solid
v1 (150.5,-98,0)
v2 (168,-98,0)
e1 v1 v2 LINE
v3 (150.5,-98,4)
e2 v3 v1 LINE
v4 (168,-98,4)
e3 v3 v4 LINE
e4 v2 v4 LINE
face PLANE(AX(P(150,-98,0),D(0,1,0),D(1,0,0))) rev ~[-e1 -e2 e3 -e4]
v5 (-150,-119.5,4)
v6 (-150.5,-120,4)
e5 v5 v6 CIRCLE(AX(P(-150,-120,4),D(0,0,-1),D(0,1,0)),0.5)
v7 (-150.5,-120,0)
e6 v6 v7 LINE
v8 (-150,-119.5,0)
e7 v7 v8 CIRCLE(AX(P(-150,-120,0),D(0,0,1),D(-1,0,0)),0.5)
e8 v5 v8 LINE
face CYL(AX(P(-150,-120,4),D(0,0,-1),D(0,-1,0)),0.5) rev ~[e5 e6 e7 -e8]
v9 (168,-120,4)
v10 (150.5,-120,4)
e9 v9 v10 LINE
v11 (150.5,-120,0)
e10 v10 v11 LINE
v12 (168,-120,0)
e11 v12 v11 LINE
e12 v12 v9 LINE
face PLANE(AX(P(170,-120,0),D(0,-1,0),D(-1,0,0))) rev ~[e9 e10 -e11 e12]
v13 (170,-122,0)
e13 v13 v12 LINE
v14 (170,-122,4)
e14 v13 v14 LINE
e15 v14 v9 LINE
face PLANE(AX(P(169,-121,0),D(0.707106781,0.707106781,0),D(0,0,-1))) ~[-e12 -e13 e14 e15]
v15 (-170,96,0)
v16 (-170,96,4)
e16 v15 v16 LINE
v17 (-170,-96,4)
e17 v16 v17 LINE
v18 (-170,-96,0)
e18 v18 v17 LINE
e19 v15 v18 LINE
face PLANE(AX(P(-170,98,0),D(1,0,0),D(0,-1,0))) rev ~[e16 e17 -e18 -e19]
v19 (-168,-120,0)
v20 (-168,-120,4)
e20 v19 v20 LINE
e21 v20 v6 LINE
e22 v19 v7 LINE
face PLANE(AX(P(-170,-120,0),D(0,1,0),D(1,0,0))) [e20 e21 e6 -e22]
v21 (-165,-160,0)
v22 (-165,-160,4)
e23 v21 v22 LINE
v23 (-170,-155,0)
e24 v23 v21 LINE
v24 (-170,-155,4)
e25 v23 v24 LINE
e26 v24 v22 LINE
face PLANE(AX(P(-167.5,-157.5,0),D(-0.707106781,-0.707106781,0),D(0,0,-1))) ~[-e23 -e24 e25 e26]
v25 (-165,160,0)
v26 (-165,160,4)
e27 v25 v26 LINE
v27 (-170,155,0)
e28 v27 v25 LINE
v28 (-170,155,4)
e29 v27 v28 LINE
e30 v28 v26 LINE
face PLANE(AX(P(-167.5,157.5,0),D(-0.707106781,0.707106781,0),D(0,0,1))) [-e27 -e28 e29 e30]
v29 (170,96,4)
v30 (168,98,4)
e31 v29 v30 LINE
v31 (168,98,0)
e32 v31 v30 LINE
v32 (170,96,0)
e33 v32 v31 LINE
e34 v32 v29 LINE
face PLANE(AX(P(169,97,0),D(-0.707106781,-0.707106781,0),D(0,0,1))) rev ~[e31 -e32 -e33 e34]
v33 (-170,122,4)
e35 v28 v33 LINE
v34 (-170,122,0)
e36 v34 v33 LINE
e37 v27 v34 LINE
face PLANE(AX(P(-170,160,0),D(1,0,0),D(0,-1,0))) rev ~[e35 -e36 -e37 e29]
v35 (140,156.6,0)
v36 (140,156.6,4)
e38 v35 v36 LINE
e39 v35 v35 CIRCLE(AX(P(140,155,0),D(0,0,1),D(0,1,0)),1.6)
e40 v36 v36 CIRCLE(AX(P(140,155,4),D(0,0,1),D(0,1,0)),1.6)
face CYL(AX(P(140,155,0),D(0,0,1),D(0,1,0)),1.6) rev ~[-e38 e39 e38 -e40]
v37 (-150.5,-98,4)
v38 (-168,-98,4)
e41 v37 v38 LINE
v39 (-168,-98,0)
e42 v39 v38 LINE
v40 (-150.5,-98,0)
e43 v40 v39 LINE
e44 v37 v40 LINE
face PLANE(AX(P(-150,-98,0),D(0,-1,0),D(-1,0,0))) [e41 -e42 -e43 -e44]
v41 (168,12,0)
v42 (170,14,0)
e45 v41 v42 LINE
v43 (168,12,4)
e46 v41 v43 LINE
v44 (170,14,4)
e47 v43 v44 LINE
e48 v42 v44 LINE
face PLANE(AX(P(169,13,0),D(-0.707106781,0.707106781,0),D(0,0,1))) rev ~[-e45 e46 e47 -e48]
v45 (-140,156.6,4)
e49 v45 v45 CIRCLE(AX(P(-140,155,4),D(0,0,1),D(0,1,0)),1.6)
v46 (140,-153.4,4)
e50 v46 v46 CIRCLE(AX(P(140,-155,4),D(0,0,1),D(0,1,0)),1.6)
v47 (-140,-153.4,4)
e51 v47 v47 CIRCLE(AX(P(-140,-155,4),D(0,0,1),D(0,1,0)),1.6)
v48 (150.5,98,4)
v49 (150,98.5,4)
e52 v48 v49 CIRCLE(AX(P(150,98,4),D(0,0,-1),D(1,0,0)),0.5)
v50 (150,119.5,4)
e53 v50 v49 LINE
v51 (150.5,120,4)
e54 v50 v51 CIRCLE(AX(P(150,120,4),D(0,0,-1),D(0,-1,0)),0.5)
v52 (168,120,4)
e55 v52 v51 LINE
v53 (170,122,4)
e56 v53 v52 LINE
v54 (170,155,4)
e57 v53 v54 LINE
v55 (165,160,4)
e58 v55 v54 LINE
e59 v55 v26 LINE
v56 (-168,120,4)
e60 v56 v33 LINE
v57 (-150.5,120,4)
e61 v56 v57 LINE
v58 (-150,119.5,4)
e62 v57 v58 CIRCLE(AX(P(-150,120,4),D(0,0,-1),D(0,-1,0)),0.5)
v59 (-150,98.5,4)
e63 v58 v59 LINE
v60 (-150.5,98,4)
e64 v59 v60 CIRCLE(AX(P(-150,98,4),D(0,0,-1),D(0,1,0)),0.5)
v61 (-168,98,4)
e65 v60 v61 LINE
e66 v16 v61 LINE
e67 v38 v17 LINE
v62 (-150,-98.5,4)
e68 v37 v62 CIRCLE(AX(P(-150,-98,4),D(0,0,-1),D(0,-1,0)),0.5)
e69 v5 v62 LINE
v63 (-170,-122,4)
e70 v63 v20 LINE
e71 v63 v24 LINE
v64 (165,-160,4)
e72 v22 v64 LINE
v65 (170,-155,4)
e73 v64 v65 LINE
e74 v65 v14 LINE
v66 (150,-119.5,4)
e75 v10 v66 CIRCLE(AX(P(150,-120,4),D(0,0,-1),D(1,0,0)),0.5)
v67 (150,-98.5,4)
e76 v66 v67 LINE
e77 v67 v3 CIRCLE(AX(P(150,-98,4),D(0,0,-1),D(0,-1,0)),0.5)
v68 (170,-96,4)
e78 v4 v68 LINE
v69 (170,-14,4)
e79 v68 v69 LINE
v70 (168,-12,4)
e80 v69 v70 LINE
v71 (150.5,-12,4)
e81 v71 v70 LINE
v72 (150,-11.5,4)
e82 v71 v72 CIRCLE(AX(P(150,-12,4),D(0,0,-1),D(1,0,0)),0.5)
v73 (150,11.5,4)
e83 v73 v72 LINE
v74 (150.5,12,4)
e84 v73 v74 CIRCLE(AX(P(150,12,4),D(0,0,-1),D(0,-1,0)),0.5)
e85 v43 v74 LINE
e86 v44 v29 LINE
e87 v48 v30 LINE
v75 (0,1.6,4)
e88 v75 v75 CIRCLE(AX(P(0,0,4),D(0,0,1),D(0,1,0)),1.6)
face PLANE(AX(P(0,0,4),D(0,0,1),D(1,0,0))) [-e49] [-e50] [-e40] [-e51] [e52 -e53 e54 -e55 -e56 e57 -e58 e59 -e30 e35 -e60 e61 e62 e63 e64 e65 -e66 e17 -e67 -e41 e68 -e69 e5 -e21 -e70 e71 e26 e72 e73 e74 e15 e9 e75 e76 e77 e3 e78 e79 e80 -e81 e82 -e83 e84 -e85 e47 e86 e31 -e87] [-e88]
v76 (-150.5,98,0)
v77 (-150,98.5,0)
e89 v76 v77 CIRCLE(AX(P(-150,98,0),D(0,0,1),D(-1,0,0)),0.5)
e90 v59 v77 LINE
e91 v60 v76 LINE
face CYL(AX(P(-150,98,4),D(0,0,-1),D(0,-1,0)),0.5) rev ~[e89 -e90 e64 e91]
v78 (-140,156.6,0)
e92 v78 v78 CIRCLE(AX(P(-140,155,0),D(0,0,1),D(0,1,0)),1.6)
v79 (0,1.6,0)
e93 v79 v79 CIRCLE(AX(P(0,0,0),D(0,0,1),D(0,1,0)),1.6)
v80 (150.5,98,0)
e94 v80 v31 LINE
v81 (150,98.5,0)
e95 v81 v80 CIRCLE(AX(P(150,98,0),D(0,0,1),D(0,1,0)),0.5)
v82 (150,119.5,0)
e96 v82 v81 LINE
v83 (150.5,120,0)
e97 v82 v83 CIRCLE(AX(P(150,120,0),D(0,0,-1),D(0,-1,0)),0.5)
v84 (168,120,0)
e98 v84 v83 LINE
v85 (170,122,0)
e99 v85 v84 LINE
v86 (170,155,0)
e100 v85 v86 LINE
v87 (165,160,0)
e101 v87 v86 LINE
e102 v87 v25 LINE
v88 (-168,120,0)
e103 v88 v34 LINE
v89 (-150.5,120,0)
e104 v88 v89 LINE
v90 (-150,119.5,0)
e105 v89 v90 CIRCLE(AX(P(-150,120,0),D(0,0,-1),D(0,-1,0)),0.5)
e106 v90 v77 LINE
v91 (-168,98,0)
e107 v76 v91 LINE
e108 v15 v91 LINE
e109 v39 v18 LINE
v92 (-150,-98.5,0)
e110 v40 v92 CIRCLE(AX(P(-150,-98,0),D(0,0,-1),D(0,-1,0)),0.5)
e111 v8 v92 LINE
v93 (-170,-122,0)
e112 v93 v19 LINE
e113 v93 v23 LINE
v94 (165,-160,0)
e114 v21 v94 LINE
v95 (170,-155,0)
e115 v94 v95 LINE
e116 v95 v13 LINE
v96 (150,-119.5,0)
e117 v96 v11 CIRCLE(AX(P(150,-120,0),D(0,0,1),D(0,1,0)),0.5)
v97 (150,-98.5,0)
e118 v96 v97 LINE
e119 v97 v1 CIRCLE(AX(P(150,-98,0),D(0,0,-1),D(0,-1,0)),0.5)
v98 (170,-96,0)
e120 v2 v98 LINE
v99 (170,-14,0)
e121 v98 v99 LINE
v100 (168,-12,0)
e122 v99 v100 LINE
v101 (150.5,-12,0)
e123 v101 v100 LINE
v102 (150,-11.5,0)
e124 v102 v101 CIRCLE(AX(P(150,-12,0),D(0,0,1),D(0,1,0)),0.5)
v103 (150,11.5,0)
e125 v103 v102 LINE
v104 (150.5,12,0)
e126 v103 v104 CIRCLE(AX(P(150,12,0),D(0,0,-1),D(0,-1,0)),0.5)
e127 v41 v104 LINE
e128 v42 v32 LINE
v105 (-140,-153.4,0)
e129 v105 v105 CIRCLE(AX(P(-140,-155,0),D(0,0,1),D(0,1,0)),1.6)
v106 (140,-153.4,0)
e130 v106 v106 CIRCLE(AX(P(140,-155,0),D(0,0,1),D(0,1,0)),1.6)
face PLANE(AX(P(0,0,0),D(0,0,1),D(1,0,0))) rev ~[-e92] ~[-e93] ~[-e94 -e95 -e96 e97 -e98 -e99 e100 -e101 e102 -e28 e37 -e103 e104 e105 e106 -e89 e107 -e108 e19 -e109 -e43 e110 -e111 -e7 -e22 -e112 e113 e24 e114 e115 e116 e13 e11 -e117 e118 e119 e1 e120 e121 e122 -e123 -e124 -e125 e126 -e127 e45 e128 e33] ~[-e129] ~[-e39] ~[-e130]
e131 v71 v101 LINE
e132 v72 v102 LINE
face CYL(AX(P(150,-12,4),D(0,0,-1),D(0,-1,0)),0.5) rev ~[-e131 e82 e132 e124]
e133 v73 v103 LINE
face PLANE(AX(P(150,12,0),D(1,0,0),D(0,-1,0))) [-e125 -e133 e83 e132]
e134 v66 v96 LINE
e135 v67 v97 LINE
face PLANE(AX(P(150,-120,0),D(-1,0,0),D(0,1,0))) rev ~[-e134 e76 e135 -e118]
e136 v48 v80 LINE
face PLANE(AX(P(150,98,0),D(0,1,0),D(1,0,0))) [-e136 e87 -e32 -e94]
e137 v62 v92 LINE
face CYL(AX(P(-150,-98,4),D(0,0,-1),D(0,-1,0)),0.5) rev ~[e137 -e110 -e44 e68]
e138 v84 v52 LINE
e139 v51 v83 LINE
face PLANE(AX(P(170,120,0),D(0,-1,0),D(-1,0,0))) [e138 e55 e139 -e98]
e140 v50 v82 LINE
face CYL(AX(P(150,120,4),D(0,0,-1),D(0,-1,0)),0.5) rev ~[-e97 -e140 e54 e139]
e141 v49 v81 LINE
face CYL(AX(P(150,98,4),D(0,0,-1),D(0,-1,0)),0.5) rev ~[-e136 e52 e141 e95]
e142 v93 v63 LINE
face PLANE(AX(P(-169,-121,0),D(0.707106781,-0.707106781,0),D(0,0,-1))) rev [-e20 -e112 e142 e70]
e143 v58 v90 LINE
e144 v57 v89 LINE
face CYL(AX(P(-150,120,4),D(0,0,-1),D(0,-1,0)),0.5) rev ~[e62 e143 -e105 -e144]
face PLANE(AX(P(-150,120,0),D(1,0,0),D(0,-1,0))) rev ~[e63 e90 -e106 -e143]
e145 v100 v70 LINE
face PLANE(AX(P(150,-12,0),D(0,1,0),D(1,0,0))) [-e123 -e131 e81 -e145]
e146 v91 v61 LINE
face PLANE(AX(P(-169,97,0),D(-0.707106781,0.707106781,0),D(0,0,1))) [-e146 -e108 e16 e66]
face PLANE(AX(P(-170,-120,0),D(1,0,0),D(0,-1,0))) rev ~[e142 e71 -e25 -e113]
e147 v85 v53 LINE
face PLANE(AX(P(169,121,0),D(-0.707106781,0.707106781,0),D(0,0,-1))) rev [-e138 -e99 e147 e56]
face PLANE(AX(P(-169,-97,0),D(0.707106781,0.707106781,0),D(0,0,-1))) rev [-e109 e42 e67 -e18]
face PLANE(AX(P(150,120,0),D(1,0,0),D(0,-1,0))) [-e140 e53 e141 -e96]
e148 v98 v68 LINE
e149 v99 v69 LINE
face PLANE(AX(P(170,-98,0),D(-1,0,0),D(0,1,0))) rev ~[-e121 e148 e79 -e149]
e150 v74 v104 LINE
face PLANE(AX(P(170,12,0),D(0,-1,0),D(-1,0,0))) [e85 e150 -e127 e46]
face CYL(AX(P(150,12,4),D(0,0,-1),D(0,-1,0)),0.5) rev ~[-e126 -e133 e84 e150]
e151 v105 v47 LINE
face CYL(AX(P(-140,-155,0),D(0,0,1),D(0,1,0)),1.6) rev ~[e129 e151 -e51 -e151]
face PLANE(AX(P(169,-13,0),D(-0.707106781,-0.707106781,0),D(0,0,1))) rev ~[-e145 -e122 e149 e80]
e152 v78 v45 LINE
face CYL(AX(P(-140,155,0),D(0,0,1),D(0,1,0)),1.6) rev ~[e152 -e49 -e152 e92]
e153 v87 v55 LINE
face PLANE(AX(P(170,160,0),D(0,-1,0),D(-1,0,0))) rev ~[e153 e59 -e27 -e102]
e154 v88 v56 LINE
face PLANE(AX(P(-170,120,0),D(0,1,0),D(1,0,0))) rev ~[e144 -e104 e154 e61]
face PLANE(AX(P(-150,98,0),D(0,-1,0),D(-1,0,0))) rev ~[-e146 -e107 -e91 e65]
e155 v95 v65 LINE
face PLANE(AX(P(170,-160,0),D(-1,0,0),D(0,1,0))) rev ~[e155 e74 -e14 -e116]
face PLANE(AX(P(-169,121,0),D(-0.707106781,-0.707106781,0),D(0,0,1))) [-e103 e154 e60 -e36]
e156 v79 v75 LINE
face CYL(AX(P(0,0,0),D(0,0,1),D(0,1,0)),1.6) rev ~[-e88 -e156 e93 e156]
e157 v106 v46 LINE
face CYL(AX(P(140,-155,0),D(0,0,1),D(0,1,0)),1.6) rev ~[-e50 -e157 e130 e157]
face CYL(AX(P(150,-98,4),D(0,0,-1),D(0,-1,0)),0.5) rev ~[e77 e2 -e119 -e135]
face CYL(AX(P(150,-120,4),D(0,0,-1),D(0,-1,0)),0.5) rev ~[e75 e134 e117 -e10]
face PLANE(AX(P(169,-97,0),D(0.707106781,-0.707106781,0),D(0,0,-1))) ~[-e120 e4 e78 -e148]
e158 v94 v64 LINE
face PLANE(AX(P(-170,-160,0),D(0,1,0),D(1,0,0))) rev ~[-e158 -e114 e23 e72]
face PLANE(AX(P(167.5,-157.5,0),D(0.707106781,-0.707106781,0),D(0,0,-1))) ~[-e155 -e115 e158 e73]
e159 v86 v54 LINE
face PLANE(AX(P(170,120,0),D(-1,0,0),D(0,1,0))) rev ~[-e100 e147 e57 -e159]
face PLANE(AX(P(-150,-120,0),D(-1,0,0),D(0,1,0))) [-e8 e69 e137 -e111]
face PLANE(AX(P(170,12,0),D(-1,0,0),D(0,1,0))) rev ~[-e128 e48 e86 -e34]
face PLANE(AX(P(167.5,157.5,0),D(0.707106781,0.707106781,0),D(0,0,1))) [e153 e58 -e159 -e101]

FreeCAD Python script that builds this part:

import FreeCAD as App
import Part
import Sketcher

V = App.Vector
Q = App.Units.Quantity


def edges_at(feature, points):
    """Names of the edges that pass closest to the given points."""
    edges = feature.Shape.Edges
    near = lambda p: min(range(len(edges)), key=lambda i: edges[i].distToShape(Part.Vertex(*p))[0])
    return sorted({f"Edge{near(p) + 1}" for p in points})

doc = App.newDocument("Part")
body = doc.addObject("PartDesign::Body", "Body")

# Sketch on XY plane
sketch1 = body.newObject("Sketcher::SketchObject", "Sketch")
sketch1.AttachmentSupport = (doc.getObject("XY_Plane"), [""])
sketch1.MapMode = "FlatFace"
sketch1.addGeometry([
    Part.LineSegment(V(-170, -120, 0), V(-170, -160, 0)),  # 0
    Part.LineSegment(V(-170, -160, 0), V(170, -160, 0)),  # 1
    Part.LineSegment(V(170, -160, 0), V(170, -120, 0)),  # 2
    Part.LineSegment(V(170, -120, 0), V(150, -120, 0)),  # 3
    Part.LineSegment(V(150, -120, 0), V(150, -98, 0)),  # 4
    Part.LineSegment(V(150, -98, 0), V(170, -98, 0)),  # 5
    Part.LineSegment(V(170, -98, 0), V(170, -12, 0)),  # 6
    Part.LineSegment(V(170, -12, 0), V(150, -12, 0)),  # 7
    Part.LineSegment(V(150, -12, 0), V(150, 12, 0)),  # 8
    Part.LineSegment(V(150, 12, 0), V(170, 12, 0)),  # 9
    Part.LineSegment(V(170, 12, 0), V(170, 98, 0)),  # 10
    Part.LineSegment(V(170, 98, 0), V(150, 98, 0)),  # 11
    Part.LineSegment(V(150, 98, 0), V(150, 120, 0)),  # 12
    Part.LineSegment(V(150, 120, 0), V(170, 120, 0)),  # 13
    Part.LineSegment(V(170, 120, 0), V(170, 160, 0)),  # 14
    Part.LineSegment(V(170, 160, 0), V(-170, 160, 0)),  # 15
    Part.LineSegment(V(-170, 160, 0), V(-170, 120, 0)),  # 16
    Part.LineSegment(V(-170, 120, 0), V(-150, 120, 0)),  # 17
    Part.LineSegment(V(-150, 120, 0), V(-150, 98, 0)),  # 18
    Part.LineSegment(V(-150, 98, 0), V(-170, 98, 0)),  # 19
    Part.LineSegment(V(-170, 98, 0), V(-170, -98, 0)),  # 20
    Part.LineSegment(V(-170, -98, 0), V(-150, -98, 0)),  # 21
    Part.LineSegment(V(-150, -98, 0), V(-150, -120, 0)),  # 22
    Part.LineSegment(V(-150, -120, 0), V(-170, -120, 0)),  # 23
], False)
sketch1.addConstraint([
    Sketcher.Constraint("Coincident", 0, 2, 1, 1),
    Sketcher.Constraint("Coincident", 1, 2, 2, 1),
    Sketcher.Constraint("Coincident", 2, 2, 3, 1),
    Sketcher.Constraint("Coincident", 3, 2, 4, 1),
    Sketcher.Constraint("Coincident", 4, 2, 5, 1),
    Sketcher.Constraint("Coincident", 5, 2, 6, 1),
    Sketcher.Constraint("Coincident", 6, 2, 7, 1),
    Sketcher.Constraint("Coincident", 7, 2, 8, 1),
    Sketcher.Constraint("Coincident", 8, 2, 9, 1),
    Sketcher.Constraint("Coincident", 9, 2, 10, 1),
    Sketcher.Constraint("Coincident", 10, 2, 11, 1),
    Sketcher.Constraint("Coincident", 11, 2, 12, 1),
    Sketcher.Constraint("Coincident", 12, 2, 13, 1),
    Sketcher.Constraint("Coincident", 13, 2, 14, 1),
    Sketcher.Constraint("Coincident", 14, 2, 15, 1),
    Sketcher.Constraint("Coincident", 15, 2, 16, 1),
    Sketcher.Constraint("Coincident", 16, 2, 17, 1),
    Sketcher.Constraint("Coincident", 17, 2, 18, 1),
    Sketcher.Constraint("Coincident", 18, 2, 19, 1),
    Sketcher.Constraint("Coincident", 19, 2, 20, 1),
    Sketcher.Constraint("Coincident", 20, 2, 21, 1),
    Sketcher.Constraint("Coincident", 21, 2, 22, 1),
    Sketcher.Constraint("Coincident", 22, 2, 23, 1),
    Sketcher.Constraint("Coincident", 23, 2, 0, 1),
    Sketcher.Constraint("Vertical", 0),
    Sketcher.Constraint("Horizontal", 1),
    Sketcher.Constraint("Vertical", 2),
    Sketcher.Constraint("Horizontal", 3),
    Sketcher.Constraint("Vertical", 4),
    Sketcher.Constraint("Horizontal", 5),
    Sketcher.Constraint("Vertical", 6),
    Sketcher.Constraint("Horizontal", 7),
    Sketcher.Constraint("Vertical", 8),
    Sketcher.Constraint("Horizontal", 9),
    Sketcher.Constraint("Vertical", 10),
    Sketcher.Constraint("Horizontal", 11),
    Sketcher.Constraint("Vertical", 12),
    Sketcher.Constraint("Horizontal", 13),
    Sketcher.Constraint("Vertical", 14),
    Sketcher.Constraint("Horizontal", 15),
    Sketcher.Constraint("Vertical", 16),
    Sketcher.Constraint("Horizontal", 17),
    Sketcher.Constraint("Vertical", 18),
    Sketcher.Constraint("Horizontal", 19),
    Sketcher.Constraint("Vertical", 20),
    Sketcher.Constraint("Horizontal", 21),
    Sketcher.Constraint("Vertical", 22),
    Sketcher.Constraint("Horizontal", 23),
    Sketcher.Constraint("Symmetric", 0, 2, 14, 2, -1, 1),
    Sketcher.Constraint("Symmetric", 2, 2, 16, 2, -1, 1),
    Sketcher.Constraint("Symmetric", 4, 2, 18, 2, -1, 1),
    Sketcher.Constraint("Symmetric", 10, 2, 20, 2, -1, 1),
    Sketcher.Constraint("Symmetric", 12, 2, 22, 2, -1, 1),
    Sketcher.Constraint("Symmetric", 13, 2, 16, 2, -2),
    Sketcher.Constraint("Symmetric", 11, 2, 18, 2, -2),
    Sketcher.Constraint("Symmetric", 6, 2, 9, 2, -1),
    Sketcher.Constraint("Vertical", 2, 2, 5, 2),
    Sketcher.Constraint("Vertical", 4, 2, 7, 2),
    Sketcher.Constraint("DistanceX", 1, 1, 1, 2, Q("340 mm")),
    Sketcher.Constraint("DistanceY", 4, 1, 4, 2, Q("22 mm")),
    Sketcher.Constraint("DistanceY", 8, 1, 8, 2, Q("24 mm")),
    Sketcher.Constraint("DistanceX", 0, 2, 3, 2, Q("320 mm")),
    Sketcher.Constraint("DistanceY", 0, 2, 15, 2, Q("320 mm")),
    Sketcher.Constraint("DistanceY", 0, 2, 16, 2, Q("280 mm")),
])
pad1 = body.newObject("PartDesign::Pad", "Pad")
pad1.Profile = sketch1
pad1.Length = 4

# Sketch on XY plane
sketch2 = body.newObject("Sketcher::SketchObject", "Sketch001")
sketch2.AttachmentSupport = (doc.getObject("XY_Plane"), [""])
sketch2.MapMode = "FlatFace"
sketch2.addGeometry([
    Part.Circle(V(-140, 155, 0), V(0, 0, 1), 1.6),  # 0
    Part.Circle(V(-140, -155, 0), V(0, 0, 1), 1.6),  # 1
    Part.Circle(V(140, -155, 0), V(0, 0, 1), 1.6),  # 2
    Part.Circle(V(140, 155, 0), V(0, 0, 1), 1.6),  # 3
    Part.Circle(V(0, 0, 0), V(0, 0, 1), 1.6),  # 4
], False)
sketch2.addConstraint([
    Sketcher.Constraint("Coincident", 4, 3, -1, 1),
    Sketcher.Constraint("Equal", 0, 1),
    Sketcher.Constraint("Equal", 1, 2),
    Sketcher.Constraint("Equal", 2, 3),
    Sketcher.Constraint("Equal", 3, 4),
    Sketcher.Constraint("Symmetric", 0, 3, 2, 3, -1, 1),
    Sketcher.Constraint("Symmetric", 1, 3, 3, 3, -1, 1),
    Sketcher.Constraint("Symmetric", 1, 3, 2, 3, -2),
    Sketcher.Constraint("Diameter", 0, Q("3.2 mm")),
    Sketcher.Constraint("DistanceX", 0, 3, -1, 1, Q("140 mm")),
    Sketcher.Constraint("DistanceY", -1, 1, 0, 3, Q("155 mm")),
])
doc.recompute()
hole = body.newObject("PartDesign::Hole", "Hole")
hole.Profile = sketch2
hole.ThreadType = "None"
hole.Diameter = 3.2
hole.DepthType = "ThroughAll"
hole.Reversed = True

# Sketch on XY plane
sketch3 = body.newObject("Sketcher::SketchObject", "Sketch002")
sketch3.AttachmentSupport = (doc.getObject("XY_Plane"), [""])
sketch3.MapMode = "FlatFace"
sketch3.AttachmentOffset = App.Placement(V(0, 0, 4), App.Rotation())
sketch3.addGeometry([
    Part.Circle(V(-150, 98, 0), V(0, 0, 1), 0.5),  # 0
    Part.Circle(V(-150, 120, 0), V(0, 0, 1), 0.5),  # 1
    Part.Circle(V(-150, -120, 0), V(0, 0, 1), 0.5),  # 2
    Part.Circle(V(-150, -98, 0), V(0, 0, 1), 0.5),  # 3
    Part.Circle(V(150, -120, 0), V(0, 0, 1), 0.5),  # 4
    Part.Circle(V(150, -98, 0), V(0, 0, 1), 0.5),  # 5
    Part.Circle(V(150, 98, 0), V(0, 0, 1), 0.5),  # 6
    Part.Circle(V(150, -12, 0), V(0, 0, 1), 0.5),  # 7
    Part.Circle(V(150, 12, 0), V(0, 0, 1), 0.5),  # 8
    Part.Circle(V(150, 120, 0), V(0, 0, 1), 0.5),  # 9
], False)
sketch3.addConstraint([
    Sketcher.Constraint("Equal", 0, 1),
    Sketcher.Constraint("Equal", 1, 2),
    Sketcher.Constraint("Equal", 2, 3),
    Sketcher.Constraint("Equal", 3, 4),
    Sketcher.Constraint("Equal", 4, 5),
    Sketcher.Constraint("Equal", 5, 6),
    Sketcher.Constraint("Equal", 6, 7),
    Sketcher.Constraint("Equal", 7, 8),
    Sketcher.Constraint("Equal", 8, 9),
    Sketcher.Constraint("Symmetric", 1, 3, 4, 3, -1, 1),
    Sketcher.Constraint("Symmetric", 0, 3, 5, 3, -1, 1),
    Sketcher.Constraint("Symmetric", 3, 3, 6, 3, -1, 1),
    Sketcher.Constraint("Symmetric", 2, 3, 9, 3, -1, 1),
    Sketcher.Constraint("Symmetric", 2, 3, 4, 3, -2),
    Sketcher.Constraint("Symmetric", 3, 3, 5, 3, -2),
    Sketcher.Constraint("Symmetric", 7, 3, 8, 3, -1),
    Sketcher.Constraint("Vertical", 0, 3, 1, 3),
    Sketcher.Constraint("Vertical", 6, 3, 7, 3),
    Sketcher.Constraint("Diameter", 0, Q("1 mm")),
    Sketcher.Constraint("DistanceX", 0, 3, -1, 1, Q("150 mm")),
    Sketcher.Constraint("DistanceY", -1, 1, 0, 3, Q("98 mm")),
    Sketcher.Constraint("DistanceY", -1, 1, 1, 3, Q("120 mm")),
    Sketcher.Constraint("DistanceY", 7, 3, -1, 1, Q("12 mm")),
])
doc.recompute()
hole2 = body.newObject("PartDesign::Hole", "Hole001")
hole2.Profile = sketch3
hole2.ThreadType = "None"
hole2.Diameter = 1
hole2.DepthType = "ThroughAll"
doc.recompute()

chamfer = body.newObject("PartDesign::Chamfer", "Chamfer")
chamfer.Base = (hole2, edges_at(hole2, [
    (-170, -160, 2),
    (170, -160, 2),
    (170, 160, 2),
    (-170, 160, 2),
]))
chamfer.Size = 5
doc.recompute()

chamfer2 = body.newObject("PartDesign::Chamfer", "Chamfer001")
chamfer2.Base = (chamfer, edges_at(chamfer, [
    (170, -120, 2),
    (170, -98, 2),
    (170, -12, 2),
    (170, 12, 2),
    (170, 98, 2),
    (170, 120, 2),
    (-170, -120, 2),
    (-170, -98, 2),
    (-170, 120, 2),
    (-170, 98, 2),
]))
chamfer2.Size = 2

doc.recompute()
